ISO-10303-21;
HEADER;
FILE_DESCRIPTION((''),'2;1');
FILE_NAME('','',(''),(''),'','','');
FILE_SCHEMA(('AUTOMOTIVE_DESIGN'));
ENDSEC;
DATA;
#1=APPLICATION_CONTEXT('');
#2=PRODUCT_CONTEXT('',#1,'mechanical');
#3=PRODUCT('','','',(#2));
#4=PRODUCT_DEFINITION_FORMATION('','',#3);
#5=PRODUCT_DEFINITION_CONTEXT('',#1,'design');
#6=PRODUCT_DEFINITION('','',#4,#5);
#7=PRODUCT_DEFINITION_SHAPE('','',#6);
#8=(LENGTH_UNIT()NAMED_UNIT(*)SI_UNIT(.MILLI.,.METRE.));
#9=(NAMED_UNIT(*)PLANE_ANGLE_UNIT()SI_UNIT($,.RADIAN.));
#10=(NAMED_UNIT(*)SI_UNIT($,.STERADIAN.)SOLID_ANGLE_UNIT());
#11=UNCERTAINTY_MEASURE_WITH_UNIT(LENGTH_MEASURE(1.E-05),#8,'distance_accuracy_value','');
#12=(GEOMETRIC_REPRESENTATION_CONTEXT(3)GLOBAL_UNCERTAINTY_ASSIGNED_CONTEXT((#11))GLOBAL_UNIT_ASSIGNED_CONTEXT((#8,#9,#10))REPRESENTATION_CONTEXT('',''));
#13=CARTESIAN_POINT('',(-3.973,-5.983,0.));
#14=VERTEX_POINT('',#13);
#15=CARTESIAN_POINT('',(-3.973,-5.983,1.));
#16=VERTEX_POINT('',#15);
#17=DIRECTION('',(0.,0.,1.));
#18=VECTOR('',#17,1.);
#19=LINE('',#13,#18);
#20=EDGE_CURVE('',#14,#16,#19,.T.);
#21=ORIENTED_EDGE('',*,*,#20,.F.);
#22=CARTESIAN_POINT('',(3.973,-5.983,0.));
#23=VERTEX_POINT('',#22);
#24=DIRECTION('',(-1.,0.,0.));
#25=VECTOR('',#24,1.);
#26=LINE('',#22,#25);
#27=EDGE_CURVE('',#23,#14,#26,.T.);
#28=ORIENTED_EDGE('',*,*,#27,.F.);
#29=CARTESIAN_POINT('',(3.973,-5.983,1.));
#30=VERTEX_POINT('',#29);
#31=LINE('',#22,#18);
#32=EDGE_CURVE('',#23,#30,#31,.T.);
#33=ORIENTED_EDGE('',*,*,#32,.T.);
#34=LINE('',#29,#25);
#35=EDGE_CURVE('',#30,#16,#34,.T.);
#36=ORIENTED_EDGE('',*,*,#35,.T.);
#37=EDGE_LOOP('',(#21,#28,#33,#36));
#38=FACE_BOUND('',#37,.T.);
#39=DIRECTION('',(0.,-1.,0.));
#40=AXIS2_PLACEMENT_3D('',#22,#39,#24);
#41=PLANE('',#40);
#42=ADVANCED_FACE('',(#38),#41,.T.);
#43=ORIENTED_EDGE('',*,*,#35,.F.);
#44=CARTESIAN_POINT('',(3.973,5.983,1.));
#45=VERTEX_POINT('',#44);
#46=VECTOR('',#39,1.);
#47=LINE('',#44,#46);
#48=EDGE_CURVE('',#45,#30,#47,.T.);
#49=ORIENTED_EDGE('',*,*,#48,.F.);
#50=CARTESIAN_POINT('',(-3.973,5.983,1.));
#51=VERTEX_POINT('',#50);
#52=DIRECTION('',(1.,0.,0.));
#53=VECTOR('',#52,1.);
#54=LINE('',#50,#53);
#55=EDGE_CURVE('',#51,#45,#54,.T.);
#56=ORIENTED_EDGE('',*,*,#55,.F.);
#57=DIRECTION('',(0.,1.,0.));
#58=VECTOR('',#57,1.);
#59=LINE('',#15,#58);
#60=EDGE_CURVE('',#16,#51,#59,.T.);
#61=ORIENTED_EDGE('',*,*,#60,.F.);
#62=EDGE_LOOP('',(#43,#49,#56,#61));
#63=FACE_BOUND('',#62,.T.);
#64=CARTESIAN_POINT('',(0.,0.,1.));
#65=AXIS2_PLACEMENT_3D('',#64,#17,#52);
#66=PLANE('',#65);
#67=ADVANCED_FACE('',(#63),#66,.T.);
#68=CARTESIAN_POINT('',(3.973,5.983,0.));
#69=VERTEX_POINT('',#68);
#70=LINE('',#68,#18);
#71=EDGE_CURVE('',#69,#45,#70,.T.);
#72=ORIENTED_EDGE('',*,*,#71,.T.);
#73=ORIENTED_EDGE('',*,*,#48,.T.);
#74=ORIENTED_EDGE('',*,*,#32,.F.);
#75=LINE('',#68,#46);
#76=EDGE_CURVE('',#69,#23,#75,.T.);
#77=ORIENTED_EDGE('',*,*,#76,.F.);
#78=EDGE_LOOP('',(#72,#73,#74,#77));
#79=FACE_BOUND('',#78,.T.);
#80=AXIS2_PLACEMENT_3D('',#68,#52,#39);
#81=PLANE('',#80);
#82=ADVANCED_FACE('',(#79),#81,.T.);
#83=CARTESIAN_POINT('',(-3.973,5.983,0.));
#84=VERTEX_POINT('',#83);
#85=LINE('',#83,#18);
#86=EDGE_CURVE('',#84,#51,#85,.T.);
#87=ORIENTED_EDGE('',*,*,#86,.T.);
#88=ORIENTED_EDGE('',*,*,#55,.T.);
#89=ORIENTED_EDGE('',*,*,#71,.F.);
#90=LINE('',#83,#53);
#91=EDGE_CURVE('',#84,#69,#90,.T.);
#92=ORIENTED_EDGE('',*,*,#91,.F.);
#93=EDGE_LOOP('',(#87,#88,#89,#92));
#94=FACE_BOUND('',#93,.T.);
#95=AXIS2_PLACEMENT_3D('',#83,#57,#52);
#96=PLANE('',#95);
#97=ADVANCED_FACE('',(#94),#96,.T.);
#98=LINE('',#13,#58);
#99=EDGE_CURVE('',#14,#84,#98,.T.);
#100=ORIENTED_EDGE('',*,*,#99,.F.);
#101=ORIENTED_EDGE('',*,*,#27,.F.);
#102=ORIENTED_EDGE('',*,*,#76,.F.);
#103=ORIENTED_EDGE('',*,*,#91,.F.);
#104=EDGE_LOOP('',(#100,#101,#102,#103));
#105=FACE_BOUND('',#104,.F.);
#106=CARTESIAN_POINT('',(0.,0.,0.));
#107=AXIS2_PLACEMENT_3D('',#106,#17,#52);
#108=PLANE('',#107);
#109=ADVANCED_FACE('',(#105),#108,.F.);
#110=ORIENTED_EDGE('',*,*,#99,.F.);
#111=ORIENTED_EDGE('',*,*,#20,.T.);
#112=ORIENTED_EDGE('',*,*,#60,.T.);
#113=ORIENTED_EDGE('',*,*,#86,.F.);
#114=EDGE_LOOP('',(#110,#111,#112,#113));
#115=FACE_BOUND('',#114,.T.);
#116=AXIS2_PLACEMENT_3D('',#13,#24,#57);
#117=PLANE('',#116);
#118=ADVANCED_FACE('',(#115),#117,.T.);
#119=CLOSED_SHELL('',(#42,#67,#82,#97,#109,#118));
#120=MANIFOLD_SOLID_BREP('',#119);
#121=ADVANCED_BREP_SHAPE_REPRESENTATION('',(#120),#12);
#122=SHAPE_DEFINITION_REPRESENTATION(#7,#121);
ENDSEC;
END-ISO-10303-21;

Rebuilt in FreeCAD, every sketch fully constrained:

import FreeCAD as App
import Part
import Sketcher
Q = App.Units.Quantity


def add_polygon(sketch, points):
    """Adds a closed chain of lines whose ends are joined by coincident constraints."""
    first, n = sketch.GeometryCount, len(points)
    for a, b in zip(points, points[1:] + points[:1]):
        sketch.addGeometry(Part.LineSegment(App.Vector(*a, 0), App.Vector(*b, 0)), False)
    for i in range(n):
        sketch.addConstraint(Sketcher.Constraint("Coincident", first + i, 2, first + (i + 1) % n, 1))

doc = App.newDocument("Part")
body = doc.addObject("PartDesign::Body", "Body")

sketch1 = body.newObject("Sketcher::SketchObject", "Sketch")
sketch1.AttachmentSupport = (doc.getObject("XY_Plane"), [""])
sketch1.MapMode = "FlatFace"
add_polygon(sketch1, [(3.973, 5.983), (-3.973, 5.983), (-3.973, -5.983), (3.973, -5.983)])
sketch1.addConstraint([
    Sketcher.Constraint("Horizontal", 0),
    Sketcher.Constraint("Vertical", 1),
    Sketcher.Constraint("Horizontal", 2),
    Sketcher.Constraint("Vertical", 3),
    Sketcher.Constraint("Symmetric", 0, 2, 2, 2, -1, 1),
    Sketcher.Constraint("DistanceX", 0, 2, 0, 1, Q("7.946 mm")),
    Sketcher.Constraint("DistanceY", 1, 2, 1, 1, Q("11.966 mm")),
])
pad1 = body.newObject("PartDesign::Pad", "Pad")
pad1.Profile = sketch1
pad1.Length = 1

doc.recompute()
